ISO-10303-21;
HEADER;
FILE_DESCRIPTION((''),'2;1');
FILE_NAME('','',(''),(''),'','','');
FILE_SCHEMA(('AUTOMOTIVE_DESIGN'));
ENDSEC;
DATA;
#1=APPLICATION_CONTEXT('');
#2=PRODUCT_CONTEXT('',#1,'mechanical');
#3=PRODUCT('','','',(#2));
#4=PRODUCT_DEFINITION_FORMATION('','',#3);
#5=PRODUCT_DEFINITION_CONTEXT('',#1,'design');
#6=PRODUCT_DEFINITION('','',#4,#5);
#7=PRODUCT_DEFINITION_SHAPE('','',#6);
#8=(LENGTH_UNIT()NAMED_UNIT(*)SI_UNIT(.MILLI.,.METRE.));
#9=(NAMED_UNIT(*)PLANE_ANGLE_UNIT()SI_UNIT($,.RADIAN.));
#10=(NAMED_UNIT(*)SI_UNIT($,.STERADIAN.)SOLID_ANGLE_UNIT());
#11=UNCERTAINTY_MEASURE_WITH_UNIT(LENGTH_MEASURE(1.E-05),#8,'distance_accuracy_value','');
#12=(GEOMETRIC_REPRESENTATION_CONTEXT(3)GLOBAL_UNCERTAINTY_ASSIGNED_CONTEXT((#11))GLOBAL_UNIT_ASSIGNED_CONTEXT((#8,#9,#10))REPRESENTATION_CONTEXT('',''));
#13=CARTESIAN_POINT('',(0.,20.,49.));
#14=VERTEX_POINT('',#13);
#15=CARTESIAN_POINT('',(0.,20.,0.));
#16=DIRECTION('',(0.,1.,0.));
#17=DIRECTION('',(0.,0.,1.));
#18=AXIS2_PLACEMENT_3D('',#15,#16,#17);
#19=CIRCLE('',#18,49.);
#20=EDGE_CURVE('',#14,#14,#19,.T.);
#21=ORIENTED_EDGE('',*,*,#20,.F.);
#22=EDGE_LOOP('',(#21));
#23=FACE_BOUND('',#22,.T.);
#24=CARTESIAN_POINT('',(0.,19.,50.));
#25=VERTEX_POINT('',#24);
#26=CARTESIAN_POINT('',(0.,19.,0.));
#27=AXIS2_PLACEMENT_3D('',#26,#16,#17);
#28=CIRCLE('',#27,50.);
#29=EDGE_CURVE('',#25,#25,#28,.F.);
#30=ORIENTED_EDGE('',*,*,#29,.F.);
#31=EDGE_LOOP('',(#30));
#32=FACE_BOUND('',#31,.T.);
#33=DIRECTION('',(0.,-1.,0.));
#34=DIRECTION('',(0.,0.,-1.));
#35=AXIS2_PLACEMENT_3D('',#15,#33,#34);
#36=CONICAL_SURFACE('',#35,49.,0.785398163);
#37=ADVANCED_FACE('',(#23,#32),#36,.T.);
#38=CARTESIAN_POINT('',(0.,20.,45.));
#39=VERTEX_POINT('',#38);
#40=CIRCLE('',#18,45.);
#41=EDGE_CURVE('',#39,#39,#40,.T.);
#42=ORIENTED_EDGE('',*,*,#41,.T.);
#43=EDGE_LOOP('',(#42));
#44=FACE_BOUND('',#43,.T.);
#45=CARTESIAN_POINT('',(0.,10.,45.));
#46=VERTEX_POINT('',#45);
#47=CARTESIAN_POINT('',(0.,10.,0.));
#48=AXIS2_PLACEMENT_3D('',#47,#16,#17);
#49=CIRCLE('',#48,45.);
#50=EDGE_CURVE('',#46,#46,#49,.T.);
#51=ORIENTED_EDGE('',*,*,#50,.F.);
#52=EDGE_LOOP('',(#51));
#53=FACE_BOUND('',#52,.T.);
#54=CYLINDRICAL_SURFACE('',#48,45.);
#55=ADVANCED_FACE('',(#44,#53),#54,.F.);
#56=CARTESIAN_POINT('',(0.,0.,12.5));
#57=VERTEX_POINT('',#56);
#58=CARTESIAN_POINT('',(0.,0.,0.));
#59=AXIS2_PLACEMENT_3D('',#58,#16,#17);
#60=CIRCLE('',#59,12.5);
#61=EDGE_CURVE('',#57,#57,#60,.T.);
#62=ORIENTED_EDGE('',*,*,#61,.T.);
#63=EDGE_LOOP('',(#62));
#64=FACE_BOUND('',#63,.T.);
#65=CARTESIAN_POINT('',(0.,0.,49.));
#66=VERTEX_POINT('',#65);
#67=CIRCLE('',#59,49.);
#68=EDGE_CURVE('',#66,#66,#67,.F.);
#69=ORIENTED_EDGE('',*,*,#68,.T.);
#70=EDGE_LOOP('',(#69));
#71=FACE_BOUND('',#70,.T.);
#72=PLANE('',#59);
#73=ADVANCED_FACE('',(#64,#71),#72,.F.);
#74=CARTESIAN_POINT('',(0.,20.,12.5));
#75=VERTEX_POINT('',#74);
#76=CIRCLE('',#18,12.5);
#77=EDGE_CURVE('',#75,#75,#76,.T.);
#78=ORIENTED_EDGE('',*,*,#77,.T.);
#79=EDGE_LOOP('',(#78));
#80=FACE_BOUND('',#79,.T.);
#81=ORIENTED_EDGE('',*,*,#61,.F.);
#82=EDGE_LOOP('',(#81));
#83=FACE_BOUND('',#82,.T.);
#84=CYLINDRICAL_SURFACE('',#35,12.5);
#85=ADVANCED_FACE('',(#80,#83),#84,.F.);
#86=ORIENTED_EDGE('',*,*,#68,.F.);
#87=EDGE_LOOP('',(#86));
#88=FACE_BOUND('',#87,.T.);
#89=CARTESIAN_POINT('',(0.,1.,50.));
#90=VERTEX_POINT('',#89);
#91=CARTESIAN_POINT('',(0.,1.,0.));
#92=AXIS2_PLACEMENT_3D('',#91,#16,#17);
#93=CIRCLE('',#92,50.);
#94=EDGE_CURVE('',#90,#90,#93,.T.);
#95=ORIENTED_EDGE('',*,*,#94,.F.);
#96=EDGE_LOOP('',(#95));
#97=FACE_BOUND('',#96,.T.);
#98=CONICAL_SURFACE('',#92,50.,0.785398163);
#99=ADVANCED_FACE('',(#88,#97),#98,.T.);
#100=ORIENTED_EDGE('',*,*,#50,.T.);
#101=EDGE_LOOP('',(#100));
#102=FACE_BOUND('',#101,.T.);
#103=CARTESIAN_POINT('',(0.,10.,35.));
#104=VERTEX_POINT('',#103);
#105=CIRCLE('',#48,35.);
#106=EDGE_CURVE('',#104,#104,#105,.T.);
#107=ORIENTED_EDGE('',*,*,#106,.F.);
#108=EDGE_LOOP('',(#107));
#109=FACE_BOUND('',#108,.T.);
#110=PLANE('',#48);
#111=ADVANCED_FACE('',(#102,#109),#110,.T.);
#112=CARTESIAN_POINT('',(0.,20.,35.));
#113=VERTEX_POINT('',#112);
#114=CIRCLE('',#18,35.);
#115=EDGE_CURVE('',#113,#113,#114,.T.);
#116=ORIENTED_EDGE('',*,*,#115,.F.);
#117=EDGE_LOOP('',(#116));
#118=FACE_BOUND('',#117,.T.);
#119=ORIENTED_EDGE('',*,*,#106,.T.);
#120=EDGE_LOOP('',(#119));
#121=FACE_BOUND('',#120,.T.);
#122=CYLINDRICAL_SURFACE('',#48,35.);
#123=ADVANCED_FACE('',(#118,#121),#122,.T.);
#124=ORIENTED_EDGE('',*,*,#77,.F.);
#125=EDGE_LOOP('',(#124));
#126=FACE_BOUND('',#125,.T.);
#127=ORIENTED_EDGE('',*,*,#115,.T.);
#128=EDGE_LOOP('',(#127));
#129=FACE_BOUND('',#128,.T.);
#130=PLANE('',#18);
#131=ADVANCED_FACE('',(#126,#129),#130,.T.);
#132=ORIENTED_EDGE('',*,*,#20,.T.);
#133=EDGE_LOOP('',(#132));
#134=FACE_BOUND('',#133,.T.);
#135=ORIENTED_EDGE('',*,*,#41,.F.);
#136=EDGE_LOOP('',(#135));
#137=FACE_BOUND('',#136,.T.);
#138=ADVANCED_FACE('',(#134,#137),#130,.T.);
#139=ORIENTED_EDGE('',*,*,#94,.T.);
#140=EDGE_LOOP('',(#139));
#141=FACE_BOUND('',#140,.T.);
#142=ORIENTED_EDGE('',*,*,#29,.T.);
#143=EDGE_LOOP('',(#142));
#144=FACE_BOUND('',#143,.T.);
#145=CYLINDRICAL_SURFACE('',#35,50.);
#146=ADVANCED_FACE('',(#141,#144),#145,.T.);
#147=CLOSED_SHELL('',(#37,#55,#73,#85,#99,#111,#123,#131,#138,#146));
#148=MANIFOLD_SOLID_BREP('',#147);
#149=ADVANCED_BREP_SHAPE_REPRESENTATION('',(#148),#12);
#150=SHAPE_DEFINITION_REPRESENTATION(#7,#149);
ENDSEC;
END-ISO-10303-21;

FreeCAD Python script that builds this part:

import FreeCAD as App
import Part
import Sketcher
Q = App.Units.Quantity


def edges_at(feature, points):
    """Names of the edges that pass closest to the given points."""
    edges = feature.Shape.Edges
    near = lambda p: min(range(len(edges)), key=lambda i: edges[i].distToShape(Part.Vertex(*p))[0])
    return sorted({f"Edge{near(p) + 1}" for p in points})

doc = App.newDocument("Part")
body = doc.addObject("PartDesign::Body", "Body")

sketch1 = doc.addObject("Sketcher::SketchObject", "Sketch")
body.addObject(sketch1)
sketch1.AttachmentSupport = (doc.XZ_Plane, [""])
sketch1.MapMode = "FlatFace"
sketch1.addGeometry(Part.Circle(App.Vector(0, 0, 0), App.Vector(0, 0, 1), 50), False)
sketch1.addConstraint(Sketcher.Constraint("Coincident", 0, 3, -1, 1))
sketch1.addConstraint(Sketcher.Constraint("Diameter", 0, Q("100 mm")))
pad1 = doc.addObject("PartDesign::Pad", "Pad")
body.addObject(pad1)
pad1.Profile = sketch1
pad1.Length = 20
pad1.Reversed = True

sketch2 = doc.addObject("Sketcher::SketchObject", "Sketch001")
body.addObject(sketch2)
sketch2.AttachmentSupport = (doc.XZ_Plane, [""])
sketch2.MapMode = "FlatFace"
sketch2.AttachmentOffset = App.Placement(App.Vector(0, 0, -20), App.Rotation())
sketch2.addGeometry(Part.Circle(App.Vector(0, 0, 0), App.Vector(0, 0, 1), 45), False)
sketch2.addGeometry(Part.Circle(App.Vector(0, 0, 0), App.Vector(0, 0, 1), 35), False)
sketch2.addConstraint(Sketcher.Constraint("Coincident", 0, 3, -1, 1))
sketch2.addConstraint(Sketcher.Constraint("Coincident", 1, 3, -1, 1))
sketch2.addConstraint(Sketcher.Constraint("Diameter", 0, Q("90 mm")))
sketch2.addConstraint(Sketcher.Constraint("Diameter", 1, Q("70 mm")))
pocket1 = doc.addObject("PartDesign::Pocket", "Pocket")
body.addObject(pocket1)
pocket1.Profile = sketch2
pocket1.Length = 10
pocket1.Reversed = True

sketch3 = doc.addObject("Sketcher::SketchObject", "Sketch002")
body.addObject(sketch3)
sketch3.AttachmentSupport = (doc.XZ_Plane, [""])
sketch3.MapMode = "FlatFace"
sketch3.addGeometry(Part.Circle(App.Vector(0, 0, 0), App.Vector(0, 0, 1), 12), False)
sketch3.addConstraint(Sketcher.Constraint("Coincident", 0, 3, -1, 1))
sketch3.addConstraint(Sketcher.Constraint("Diameter", 0, Q("25 mm")))
pocket2 = doc.addObject("PartDesign::Pocket", "Pocket001")
body.addObject(pocket2)
pocket2.Profile = sketch3
pocket2.Type = "ThroughAll"
doc.recompute()

chamfer = doc.addObject("PartDesign::Chamfer", "Chamfer")
body.addObject(chamfer)
chamfer.Base = (pocket2, edges_at(pocket2, [(0, 0, -50), (0, 20, -50)]))
chamfer.Size = 1

doc.recompute()
